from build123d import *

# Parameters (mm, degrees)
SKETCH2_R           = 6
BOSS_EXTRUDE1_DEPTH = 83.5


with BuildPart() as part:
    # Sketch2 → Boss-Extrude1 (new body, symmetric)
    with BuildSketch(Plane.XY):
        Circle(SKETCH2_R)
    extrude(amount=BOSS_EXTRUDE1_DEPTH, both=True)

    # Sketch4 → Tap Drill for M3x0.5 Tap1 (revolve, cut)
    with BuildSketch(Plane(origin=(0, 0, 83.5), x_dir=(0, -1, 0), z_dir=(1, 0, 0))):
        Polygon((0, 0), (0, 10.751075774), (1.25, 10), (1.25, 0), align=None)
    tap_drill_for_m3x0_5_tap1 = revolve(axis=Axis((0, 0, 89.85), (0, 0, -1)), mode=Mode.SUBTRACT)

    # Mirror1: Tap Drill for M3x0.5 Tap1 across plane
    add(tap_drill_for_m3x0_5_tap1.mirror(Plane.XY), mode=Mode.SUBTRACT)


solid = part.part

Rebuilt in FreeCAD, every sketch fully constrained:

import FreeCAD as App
import Part
import Sketcher

V = App.Vector
Q = App.Units.Quantity

doc = App.newDocument("Part")
body = doc.addObject("PartDesign::Body", "Body")

# Sketch on XY plane
sketch1 = doc.addObject("Sketcher::SketchObject", "Sketch")
body.addObject(sketch1)
sketch1.AttachmentSupport = (doc.XY_Plane, [""])
sketch1.MapMode = "FlatFace"
sketch1.addGeometry(Part.Circle(V(0, 0, 0), V(0, 0, 1), 6), False)
sketch1.addConstraint(Sketcher.Constraint("Coincident", 0, 3, -1, 1))
sketch1.addConstraint(Sketcher.Constraint("Diameter", 0, 12.0))
pad1 = doc.addObject("PartDesign::Pad", "Pad")
body.addObject(pad1)
pad1.Profile = sketch1
pad1.Length = 167
pad1.Midplane = True

# Sketch on YZ plane
sketch2 = doc.addObject("Sketcher::SketchObject", "Sketch001")
body.addObject(sketch2)
sketch2.AttachmentSupport = (doc.YZ_Plane, [""])
sketch2.MapMode = "FlatFace"
sketch2.addGeometry(Part.LineSegment(V(0, 72.748924, 0), V(0, 83.5, 0)), False)
sketch2.addGeometry(Part.LineSegment(V(0, 83.5, 0), V(-1.25, 83.5, 0)), False)
sketch2.addGeometry(Part.LineSegment(V(-1.25, 83.5, 0), V(-1.25, 73.5, 0)), False)
sketch2.addGeometry(Part.LineSegment(V(-1.25, 73.5, 0), V(0, 72.748924, 0)), False)
sketch2.addConstraint(Sketcher.Constraint("Coincident", 0, 2, 1, 1))
sketch2.addConstraint(Sketcher.Constraint("Coincident", 1, 2, 2, 1))
sketch2.addConstraint(Sketcher.Constraint("Coincident", 2, 2, 3, 1))
sketch2.addConstraint(Sketcher.Constraint("Coincident", 3, 2, 0, 1))
sketch2.addConstraint(Sketcher.Constraint("Vertical", 0))
sketch2.addConstraint(Sketcher.Constraint("Horizontal", 1))
sketch2.addConstraint(Sketcher.Constraint("Vertical", 2))
sketch2.addConstraint(Sketcher.Constraint("PointOnObject", 0, 2, -2))
sketch2.addConstraint(Sketcher.Constraint("DistanceY", 2, 2, 2, 1, 10.0))
sketch2.addConstraint(Sketcher.Constraint("Angle", 3, Q("-31 deg")))
sketch2.addConstraint(Sketcher.Constraint("DistanceX", 1, 2, 1, 1, 1.25))
sketch2.addConstraint(Sketcher.Constraint("DistanceY", -1, 1, 0, 2, 83.5))
groove = doc.addObject("PartDesign::Groove", "Groove")
body.addObject(groove)
groove.Profile = sketch2
groove.ReferenceAxis = (sketch2, ["V_Axis"])
groove.Angle = 360
doc.recompute()

mirrored = doc.addObject("PartDesign::Mirrored", "Mirrored")
body.addObject(mirrored)
mirrored.Originals = [groove]
mirrored.MirrorPlane = (doc.XY_Plane, [""])
body.Tip = mirrored

doc.recompute()
